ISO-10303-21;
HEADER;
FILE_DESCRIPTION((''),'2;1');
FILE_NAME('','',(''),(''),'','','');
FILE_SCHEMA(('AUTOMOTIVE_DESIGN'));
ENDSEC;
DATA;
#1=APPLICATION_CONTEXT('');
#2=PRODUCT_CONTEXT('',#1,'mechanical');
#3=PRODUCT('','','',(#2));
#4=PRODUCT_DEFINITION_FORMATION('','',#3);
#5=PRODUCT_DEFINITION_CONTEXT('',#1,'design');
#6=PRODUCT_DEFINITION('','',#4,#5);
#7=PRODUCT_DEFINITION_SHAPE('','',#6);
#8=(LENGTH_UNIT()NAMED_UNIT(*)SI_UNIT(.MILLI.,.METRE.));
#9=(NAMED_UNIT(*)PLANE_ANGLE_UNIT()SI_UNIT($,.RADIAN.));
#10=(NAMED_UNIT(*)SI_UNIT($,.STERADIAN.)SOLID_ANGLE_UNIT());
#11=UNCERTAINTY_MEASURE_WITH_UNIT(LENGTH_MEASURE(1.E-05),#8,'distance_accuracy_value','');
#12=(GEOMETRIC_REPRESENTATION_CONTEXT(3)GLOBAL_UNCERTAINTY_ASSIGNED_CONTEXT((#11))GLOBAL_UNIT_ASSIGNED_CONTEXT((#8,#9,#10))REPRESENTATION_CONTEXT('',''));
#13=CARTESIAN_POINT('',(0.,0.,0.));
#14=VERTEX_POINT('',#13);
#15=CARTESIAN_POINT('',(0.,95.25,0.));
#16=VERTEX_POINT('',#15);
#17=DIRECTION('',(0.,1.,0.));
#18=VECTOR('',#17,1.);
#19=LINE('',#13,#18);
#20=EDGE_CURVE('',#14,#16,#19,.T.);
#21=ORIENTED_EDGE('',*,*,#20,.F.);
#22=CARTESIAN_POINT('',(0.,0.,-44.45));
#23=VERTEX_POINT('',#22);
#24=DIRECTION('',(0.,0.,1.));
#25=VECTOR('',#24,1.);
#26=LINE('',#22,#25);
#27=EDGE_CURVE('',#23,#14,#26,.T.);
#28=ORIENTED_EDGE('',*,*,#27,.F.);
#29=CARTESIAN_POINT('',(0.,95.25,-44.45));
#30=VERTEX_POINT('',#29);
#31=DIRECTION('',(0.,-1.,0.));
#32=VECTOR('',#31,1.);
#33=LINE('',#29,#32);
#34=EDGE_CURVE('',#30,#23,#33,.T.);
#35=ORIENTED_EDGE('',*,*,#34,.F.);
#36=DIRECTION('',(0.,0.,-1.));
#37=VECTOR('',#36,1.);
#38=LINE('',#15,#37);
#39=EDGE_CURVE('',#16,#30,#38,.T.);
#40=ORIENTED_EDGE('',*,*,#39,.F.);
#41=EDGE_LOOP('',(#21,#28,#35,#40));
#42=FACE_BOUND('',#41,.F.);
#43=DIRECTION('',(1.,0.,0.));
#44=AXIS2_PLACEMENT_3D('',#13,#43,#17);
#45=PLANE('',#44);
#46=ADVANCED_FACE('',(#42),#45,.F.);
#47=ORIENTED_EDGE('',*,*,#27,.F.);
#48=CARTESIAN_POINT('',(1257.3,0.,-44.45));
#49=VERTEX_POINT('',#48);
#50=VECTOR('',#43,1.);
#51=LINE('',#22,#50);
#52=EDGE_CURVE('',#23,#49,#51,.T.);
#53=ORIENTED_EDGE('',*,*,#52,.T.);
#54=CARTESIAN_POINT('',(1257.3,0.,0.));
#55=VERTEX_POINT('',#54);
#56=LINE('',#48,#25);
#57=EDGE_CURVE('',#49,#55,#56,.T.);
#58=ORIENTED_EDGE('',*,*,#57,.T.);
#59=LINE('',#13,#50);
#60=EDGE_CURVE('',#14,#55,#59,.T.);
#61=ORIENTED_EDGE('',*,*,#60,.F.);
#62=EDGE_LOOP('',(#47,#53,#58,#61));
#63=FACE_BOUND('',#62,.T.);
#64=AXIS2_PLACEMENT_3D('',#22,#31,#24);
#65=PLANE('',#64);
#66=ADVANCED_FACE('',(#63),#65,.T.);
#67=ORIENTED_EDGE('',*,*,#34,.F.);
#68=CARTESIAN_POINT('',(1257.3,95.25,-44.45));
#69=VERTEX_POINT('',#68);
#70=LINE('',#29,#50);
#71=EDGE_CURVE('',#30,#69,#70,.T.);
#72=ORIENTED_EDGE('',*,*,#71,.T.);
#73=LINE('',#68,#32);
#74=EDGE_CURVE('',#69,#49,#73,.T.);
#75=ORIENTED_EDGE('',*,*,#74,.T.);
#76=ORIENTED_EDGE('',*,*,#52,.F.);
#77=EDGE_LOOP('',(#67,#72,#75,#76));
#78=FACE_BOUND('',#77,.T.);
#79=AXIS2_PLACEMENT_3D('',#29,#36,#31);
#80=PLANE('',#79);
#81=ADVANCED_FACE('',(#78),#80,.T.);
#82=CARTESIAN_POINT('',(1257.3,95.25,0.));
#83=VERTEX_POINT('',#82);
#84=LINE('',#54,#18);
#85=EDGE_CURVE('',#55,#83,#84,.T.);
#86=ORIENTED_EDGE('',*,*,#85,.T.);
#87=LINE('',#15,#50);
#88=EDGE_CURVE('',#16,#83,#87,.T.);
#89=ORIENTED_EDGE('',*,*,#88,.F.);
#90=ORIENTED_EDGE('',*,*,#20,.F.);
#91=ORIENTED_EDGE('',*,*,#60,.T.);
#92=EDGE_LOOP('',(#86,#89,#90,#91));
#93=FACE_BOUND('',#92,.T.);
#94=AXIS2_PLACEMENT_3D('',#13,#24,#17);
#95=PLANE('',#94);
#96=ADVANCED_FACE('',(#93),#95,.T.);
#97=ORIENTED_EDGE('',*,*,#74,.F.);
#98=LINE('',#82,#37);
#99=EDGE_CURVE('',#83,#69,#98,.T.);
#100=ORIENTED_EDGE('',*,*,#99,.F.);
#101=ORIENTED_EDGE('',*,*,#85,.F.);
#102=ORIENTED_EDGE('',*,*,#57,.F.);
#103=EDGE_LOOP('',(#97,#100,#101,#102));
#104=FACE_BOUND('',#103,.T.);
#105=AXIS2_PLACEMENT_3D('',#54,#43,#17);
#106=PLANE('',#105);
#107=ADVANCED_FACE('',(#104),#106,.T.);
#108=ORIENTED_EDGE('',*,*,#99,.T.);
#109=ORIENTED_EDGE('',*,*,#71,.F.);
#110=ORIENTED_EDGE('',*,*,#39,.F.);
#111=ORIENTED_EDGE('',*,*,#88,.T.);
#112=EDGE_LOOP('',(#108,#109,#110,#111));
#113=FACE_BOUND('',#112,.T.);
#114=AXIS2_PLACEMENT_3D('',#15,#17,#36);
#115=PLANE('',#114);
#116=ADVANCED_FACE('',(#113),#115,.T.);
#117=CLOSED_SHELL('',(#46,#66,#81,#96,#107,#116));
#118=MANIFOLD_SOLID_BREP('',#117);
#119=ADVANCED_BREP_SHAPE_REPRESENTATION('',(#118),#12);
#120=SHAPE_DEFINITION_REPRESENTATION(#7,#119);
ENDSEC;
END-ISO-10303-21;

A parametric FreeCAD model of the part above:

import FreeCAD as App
import Part
import Sketcher

V = App.Vector
Q = App.Units.Quantity

doc = App.newDocument("Part")
body = doc.addObject("PartDesign::Body", "Body")

sketch1 = doc.addObject("Sketcher::SketchObject", "Sketch")
body.addObject(sketch1)
sketch1.AttachmentSupport = (doc.YZ_Plane, [""])
sketch1.MapMode = "FlatFace"
sketch1.addGeometry(Part.LineSegment(V(95, 0, 0), V(0, 0, 0)), False)
sketch1.addGeometry(Part.LineSegment(V(0, 0, 0), V(0, -44, 0)), False)
sketch1.addGeometry(Part.LineSegment(V(0, -44, 0), V(95, -44, 0)), False)
sketch1.addGeometry(Part.LineSegment(V(95, -44, 0), V(95, 0, 0)), False)
sketch1.addConstraint(Sketcher.Constraint("Coincident", 0, 2, 1, 1))
sketch1.addConstraint(Sketcher.Constraint("Coincident", 1, 2, 2, 1))
sketch1.addConstraint(Sketcher.Constraint("Coincident", 2, 2, 3, 1))
sketch1.addConstraint(Sketcher.Constraint("Coincident", 3, 2, 0, 1))
sketch1.addConstraint(Sketcher.Constraint("Horizontal", 0))
sketch1.addConstraint(Sketcher.Constraint("Vertical", 1))
sketch1.addConstraint(Sketcher.Constraint("Horizontal", 2))
sketch1.addConstraint(Sketcher.Constraint("Vertical", 3))
sketch1.addConstraint(Sketcher.Constraint("Coincident", 0, 2, -1, 1))
sketch1.addConstraint(Sketcher.Constraint("DistanceX", 0, 2, 0, 1, Q("3.75 in")))
sketch1.addConstraint(Sketcher.Constraint("DistanceY", 1, 2, 1, 1, Q("1.75 in")))
pad1 = doc.addObject("PartDesign::Pad", "Pad")
body.addObject(pad1)
pad1.Profile = sketch1
pad1.Length = Q("49.5 in")

doc.recompute()
